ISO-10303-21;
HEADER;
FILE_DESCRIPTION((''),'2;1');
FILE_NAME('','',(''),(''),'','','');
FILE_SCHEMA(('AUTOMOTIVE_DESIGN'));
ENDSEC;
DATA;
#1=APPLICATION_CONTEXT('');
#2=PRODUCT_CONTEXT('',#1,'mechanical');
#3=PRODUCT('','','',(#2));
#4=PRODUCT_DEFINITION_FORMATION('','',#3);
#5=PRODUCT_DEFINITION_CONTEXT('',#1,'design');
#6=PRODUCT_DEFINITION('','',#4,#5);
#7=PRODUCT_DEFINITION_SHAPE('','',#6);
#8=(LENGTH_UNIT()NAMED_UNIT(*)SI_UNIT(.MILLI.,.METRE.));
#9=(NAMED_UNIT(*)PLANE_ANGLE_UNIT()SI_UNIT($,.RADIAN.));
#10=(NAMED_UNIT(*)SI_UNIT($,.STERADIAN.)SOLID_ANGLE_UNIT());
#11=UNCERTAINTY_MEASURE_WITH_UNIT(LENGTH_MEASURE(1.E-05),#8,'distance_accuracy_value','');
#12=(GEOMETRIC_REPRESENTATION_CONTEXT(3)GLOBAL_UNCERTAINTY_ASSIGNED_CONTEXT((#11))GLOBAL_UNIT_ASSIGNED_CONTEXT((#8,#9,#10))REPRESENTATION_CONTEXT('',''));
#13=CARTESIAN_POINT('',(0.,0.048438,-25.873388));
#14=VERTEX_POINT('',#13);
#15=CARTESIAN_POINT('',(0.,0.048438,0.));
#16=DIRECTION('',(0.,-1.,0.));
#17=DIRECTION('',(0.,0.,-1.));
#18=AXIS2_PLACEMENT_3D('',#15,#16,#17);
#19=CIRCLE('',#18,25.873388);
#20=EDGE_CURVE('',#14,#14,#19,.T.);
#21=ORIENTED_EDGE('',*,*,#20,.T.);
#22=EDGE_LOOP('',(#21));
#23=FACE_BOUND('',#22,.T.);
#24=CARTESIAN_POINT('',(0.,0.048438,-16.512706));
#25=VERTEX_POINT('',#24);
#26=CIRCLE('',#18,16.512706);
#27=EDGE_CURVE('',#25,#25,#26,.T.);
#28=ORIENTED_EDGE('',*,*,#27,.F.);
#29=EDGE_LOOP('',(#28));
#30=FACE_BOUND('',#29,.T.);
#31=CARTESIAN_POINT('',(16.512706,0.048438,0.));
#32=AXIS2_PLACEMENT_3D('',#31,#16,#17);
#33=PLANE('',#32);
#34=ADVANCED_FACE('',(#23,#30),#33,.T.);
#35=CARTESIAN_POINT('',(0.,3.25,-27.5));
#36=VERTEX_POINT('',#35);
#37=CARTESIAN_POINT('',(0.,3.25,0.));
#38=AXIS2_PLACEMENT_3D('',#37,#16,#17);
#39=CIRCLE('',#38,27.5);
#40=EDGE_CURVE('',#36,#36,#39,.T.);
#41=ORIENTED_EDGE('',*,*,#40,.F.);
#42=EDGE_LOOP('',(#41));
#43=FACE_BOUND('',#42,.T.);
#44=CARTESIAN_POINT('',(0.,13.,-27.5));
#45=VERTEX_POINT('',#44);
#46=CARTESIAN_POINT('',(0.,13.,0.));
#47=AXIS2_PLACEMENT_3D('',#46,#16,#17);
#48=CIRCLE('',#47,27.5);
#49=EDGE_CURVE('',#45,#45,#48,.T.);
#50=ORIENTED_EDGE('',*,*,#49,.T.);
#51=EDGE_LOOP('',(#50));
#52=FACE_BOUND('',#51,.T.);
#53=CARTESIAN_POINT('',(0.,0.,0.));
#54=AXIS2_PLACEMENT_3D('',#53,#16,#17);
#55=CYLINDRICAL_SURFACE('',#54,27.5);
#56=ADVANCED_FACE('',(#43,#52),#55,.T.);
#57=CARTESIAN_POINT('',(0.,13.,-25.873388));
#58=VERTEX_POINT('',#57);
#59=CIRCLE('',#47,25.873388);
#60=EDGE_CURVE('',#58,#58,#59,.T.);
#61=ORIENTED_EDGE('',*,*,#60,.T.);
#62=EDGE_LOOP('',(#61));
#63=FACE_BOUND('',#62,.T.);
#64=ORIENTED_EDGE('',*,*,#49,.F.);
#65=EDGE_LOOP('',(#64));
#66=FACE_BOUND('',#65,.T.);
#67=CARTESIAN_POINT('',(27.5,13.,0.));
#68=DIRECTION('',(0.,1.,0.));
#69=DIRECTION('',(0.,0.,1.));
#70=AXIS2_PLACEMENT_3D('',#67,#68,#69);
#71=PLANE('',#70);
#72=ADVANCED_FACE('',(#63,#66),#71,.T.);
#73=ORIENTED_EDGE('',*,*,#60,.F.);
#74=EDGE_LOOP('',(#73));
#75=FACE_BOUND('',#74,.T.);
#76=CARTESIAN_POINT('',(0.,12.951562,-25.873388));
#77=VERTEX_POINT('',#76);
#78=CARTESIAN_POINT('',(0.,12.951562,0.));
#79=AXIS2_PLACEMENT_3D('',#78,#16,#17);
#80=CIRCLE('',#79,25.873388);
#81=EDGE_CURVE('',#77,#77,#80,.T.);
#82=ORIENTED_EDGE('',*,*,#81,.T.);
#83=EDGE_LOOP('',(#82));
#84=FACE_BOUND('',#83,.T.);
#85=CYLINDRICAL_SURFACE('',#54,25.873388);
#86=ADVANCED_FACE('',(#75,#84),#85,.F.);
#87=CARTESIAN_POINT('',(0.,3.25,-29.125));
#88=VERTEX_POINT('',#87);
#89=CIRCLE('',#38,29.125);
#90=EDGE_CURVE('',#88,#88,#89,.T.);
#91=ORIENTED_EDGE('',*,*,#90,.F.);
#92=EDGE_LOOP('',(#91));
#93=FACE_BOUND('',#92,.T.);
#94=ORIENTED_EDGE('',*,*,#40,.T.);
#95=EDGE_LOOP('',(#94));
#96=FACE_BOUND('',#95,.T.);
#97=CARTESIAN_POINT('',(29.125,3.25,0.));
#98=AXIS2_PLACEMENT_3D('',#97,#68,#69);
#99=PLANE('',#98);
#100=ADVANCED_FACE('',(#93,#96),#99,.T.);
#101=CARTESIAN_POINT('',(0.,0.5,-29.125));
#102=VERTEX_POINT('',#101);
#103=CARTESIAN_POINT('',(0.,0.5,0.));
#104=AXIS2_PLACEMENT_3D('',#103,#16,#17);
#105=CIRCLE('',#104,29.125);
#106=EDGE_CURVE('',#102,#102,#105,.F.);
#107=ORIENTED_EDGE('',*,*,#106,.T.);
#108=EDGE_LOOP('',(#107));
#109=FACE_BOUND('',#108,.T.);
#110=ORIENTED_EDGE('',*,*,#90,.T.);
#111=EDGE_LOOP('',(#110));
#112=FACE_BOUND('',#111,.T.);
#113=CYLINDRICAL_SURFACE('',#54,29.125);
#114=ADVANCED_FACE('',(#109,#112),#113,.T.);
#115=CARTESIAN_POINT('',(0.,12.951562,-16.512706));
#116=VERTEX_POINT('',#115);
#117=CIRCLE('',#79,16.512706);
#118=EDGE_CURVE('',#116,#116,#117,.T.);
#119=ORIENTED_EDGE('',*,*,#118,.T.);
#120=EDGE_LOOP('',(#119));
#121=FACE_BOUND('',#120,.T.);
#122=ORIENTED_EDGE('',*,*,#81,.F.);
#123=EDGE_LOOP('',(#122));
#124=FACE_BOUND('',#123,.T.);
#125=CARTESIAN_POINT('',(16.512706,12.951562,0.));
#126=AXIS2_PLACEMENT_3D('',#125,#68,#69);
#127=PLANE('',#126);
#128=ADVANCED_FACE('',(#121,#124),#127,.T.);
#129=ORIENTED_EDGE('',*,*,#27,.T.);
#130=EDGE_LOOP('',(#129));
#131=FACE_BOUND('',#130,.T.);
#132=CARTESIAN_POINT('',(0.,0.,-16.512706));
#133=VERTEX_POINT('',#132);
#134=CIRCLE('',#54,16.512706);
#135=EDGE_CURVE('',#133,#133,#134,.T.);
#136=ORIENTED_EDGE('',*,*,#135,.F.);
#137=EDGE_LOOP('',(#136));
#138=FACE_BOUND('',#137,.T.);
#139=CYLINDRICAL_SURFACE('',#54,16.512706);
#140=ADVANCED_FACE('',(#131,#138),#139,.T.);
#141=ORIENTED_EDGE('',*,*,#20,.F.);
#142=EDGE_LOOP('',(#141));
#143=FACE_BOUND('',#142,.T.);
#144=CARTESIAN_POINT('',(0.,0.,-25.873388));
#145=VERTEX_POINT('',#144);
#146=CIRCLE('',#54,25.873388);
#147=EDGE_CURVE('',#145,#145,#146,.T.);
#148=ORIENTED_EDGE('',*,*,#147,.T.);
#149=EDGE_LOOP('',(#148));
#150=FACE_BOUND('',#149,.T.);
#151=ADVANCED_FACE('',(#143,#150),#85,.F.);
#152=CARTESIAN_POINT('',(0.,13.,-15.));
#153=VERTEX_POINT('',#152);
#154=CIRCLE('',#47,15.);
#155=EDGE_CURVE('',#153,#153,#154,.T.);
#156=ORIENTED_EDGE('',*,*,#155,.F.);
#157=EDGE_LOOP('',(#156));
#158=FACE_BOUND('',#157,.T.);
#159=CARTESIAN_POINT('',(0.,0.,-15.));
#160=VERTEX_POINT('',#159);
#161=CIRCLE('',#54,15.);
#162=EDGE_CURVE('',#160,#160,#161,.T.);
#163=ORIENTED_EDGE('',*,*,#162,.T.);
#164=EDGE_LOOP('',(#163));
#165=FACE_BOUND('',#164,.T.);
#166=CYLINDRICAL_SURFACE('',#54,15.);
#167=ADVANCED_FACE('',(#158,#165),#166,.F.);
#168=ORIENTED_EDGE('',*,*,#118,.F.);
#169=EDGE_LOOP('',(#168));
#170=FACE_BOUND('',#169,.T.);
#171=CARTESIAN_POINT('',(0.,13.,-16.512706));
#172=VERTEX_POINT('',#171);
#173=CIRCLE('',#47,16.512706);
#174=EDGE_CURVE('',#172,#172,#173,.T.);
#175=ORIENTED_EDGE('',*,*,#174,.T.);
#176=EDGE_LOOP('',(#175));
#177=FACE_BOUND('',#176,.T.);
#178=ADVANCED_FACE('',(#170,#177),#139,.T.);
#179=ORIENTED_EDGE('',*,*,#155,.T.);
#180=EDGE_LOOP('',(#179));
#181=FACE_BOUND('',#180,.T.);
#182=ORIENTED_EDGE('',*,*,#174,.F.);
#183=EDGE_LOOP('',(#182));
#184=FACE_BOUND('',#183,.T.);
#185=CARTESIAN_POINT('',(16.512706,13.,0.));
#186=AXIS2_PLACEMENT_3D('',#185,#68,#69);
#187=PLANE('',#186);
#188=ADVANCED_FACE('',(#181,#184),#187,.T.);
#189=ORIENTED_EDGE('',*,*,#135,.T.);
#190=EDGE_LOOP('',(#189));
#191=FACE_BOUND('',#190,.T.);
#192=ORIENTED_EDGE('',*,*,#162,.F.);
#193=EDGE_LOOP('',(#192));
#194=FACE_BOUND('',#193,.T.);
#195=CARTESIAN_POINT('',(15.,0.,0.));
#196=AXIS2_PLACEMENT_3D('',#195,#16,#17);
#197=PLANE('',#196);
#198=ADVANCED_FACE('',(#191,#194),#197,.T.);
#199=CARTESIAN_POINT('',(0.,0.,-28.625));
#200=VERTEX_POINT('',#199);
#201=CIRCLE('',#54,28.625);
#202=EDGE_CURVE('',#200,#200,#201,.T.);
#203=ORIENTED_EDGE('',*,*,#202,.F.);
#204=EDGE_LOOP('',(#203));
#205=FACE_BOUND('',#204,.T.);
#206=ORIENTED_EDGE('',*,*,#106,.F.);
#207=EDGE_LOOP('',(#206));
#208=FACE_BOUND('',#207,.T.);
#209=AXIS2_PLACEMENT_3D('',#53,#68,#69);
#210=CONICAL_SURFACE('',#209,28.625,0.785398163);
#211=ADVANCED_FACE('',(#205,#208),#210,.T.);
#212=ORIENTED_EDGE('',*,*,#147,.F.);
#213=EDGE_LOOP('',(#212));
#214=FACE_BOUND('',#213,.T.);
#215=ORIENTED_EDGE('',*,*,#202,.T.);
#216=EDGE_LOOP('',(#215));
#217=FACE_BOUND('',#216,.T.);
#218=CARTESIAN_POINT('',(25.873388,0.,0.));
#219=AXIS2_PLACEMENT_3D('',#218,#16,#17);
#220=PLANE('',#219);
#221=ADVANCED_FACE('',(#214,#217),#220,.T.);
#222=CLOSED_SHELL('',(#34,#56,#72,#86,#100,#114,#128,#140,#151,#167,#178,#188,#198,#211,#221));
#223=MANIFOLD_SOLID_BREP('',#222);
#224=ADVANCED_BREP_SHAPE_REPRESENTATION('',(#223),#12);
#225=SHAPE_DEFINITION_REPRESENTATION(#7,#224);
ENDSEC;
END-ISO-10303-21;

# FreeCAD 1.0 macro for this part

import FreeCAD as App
import Part
import Sketcher
from FreeCAD import Vector


def edges_at(feature, points):
    """Names of the edges that pass closest to the given points."""
    edges = feature.Shape.Edges
    near = lambda p: min(range(len(edges)), key=lambda i: edges[i].distToShape(Part.Vertex(*p))[0])
    return sorted({f"Edge{near(p) + 1}" for p in points})

doc = App.newDocument("Part")
body = doc.addObject("PartDesign::Body", "Body")

# Sketch on XY plane
sketch1 = body.newObject("Sketcher::SketchObject", "Sketch")
sketch1.AttachmentSupport = (doc.getObject("XY_Plane"), [""])
sketch1.MapMode = "FlatFace"
sketch1.addGeometry(Part.LineSegment(Vector(15, 0, 0), Vector(16.513, 0, 0)), False)
sketch1.addGeometry(Part.LineSegment(Vector(16.513, 0, 0), Vector(16.513, 0.048, 0)), False)
sketch1.addGeometry(Part.LineSegment(Vector(16.513, 0.048, 0), Vector(25.873, 0.048, 0)), False)
sketch1.addGeometry(Part.LineSegment(Vector(25.873, 0.048, 0), Vector(25.873, 0, 0)), False)
sketch1.addGeometry(Part.LineSegment(Vector(25.873, 0, 0), Vector(29.125, 0, 0)), False)
sketch1.addGeometry(Part.LineSegment(Vector(29.125, 0, 0), Vector(29.125, 3.25, 0)), False)
sketch1.addGeometry(Part.LineSegment(Vector(29.125, 3.25, 0), Vector(27.5, 3.25, 0)), False)
sketch1.addGeometry(Part.LineSegment(Vector(27.5, 3.25, 0), Vector(27.5, 13, 0)), False)
sketch1.addGeometry(Part.LineSegment(Vector(27.5, 13, 0), Vector(25.873, 13, 0)), False)
sketch1.addGeometry(Part.LineSegment(Vector(25.873, 13, 0), Vector(25.873, 12.952, 0)), False)
sketch1.addGeometry(Part.LineSegment(Vector(25.873, 12.952, 0), Vector(16.513, 12.952, 0)), False)
sketch1.addGeometry(Part.LineSegment(Vector(16.513, 12.952, 0), Vector(16.513, 13, 0)), False)
sketch1.addGeometry(Part.LineSegment(Vector(16.513, 13, 0), Vector(15, 13, 0)), False)
sketch1.addGeometry(Part.LineSegment(Vector(15, 13, 0), Vector(15, 0, 0)), False)
sketch1.addConstraint(Sketcher.Constraint("Coincident", 0, 2, 1, 1))
sketch1.addConstraint(Sketcher.Constraint("Coincident", 1, 2, 2, 1))
sketch1.addConstraint(Sketcher.Constraint("Coincident", 2, 2, 3, 1))
sketch1.addConstraint(Sketcher.Constraint("Coincident", 3, 2, 4, 1))
sketch1.addConstraint(Sketcher.Constraint("Coincident", 4, 2, 5, 1))
sketch1.addConstraint(Sketcher.Constraint("Coincident", 5, 2, 6, 1))
sketch1.addConstraint(Sketcher.Constraint("Coincident", 6, 2, 7, 1))
sketch1.addConstraint(Sketcher.Constraint("Coincident", 7, 2, 8, 1))
sketch1.addConstraint(Sketcher.Constraint("Coincident", 8, 2, 9, 1))
sketch1.addConstraint(Sketcher.Constraint("Coincident", 9, 2, 10, 1))
sketch1.addConstraint(Sketcher.Constraint("Coincident", 10, 2, 11, 1))
sketch1.addConstraint(Sketcher.Constraint("Coincident", 11, 2, 12, 1))
sketch1.addConstraint(Sketcher.Constraint("Coincident", 12, 2, 13, 1))
sketch1.addConstraint(Sketcher.Constraint("Coincident", 13, 2, 0, 1))
sketch1.addConstraint(Sketcher.Constraint("Horizontal", 0))
sketch1.addConstraint(Sketcher.Constraint("Vertical", 1))
sketch1.addConstraint(Sketcher.Constraint("Horizontal", 2))
sketch1.addConstraint(Sketcher.Constraint("Vertical", 3))
sketch1.addConstraint(Sketcher.Constraint("Horizontal", 4))
sketch1.addConstraint(Sketcher.Constraint("Vertical", 5))
sketch1.addConstraint(Sketcher.Constraint("Horizontal", 6))
sketch1.addConstraint(Sketcher.Constraint("Vertical", 7))
sketch1.addConstraint(Sketcher.Constraint("Horizontal", 8))
sketch1.addConstraint(Sketcher.Constraint("Vertical", 9))
sketch1.addConstraint(Sketcher.Constraint("Horizontal", 10))
sketch1.addConstraint(Sketcher.Constraint("Vertical", 11))
sketch1.addConstraint(Sketcher.Constraint("Horizontal", 12))
sketch1.addConstraint(Sketcher.Constraint("Vertical", 13))
sketch1.addConstraint(Sketcher.Constraint("PointOnObject", 0, 2, -1))
sketch1.addConstraint(Sketcher.Constraint("PointOnObject", 3, 2, -1))
sketch1.addConstraint(Sketcher.Constraint("Horizontal", 8, 2, 11, 2))
sketch1.addConstraint(Sketcher.Constraint("Vertical", 3, 2, 8, 2))
sketch1.addConstraint(Sketcher.Constraint("Vertical", 1, 2, 10, 2))
sketch1.addConstraint(Sketcher.Constraint("Equal", 3, 9))
sketch1.addConstraint(Sketcher.Constraint("DistanceY", 13, 2, 13, 1, 13.0))
sketch1.addConstraint(Sketcher.Constraint("DistanceX", -1, 1, 12, 2, 15.0))
sketch1.addConstraint(Sketcher.Constraint("DistanceY", 5, 1, 5, 2, 3.25))
sketch1.addConstraint(Sketcher.Constraint("DistanceX", -1, 1, 6, 2, 27.5))
sketch1.addConstraint(Sketcher.Constraint("DistanceX", 6, 2, 6, 1, 1.625))
sketch1.addConstraint(Sketcher.Constraint("DistanceX", 2, 1, 2, 2, 9.360681))
sketch1.addConstraint(Sketcher.Constraint("DistanceY", 1, 1, 1, 2, 0.048438))
sketch1.addConstraint(Sketcher.Constraint("DistanceX", 0, 1, 0, 2, 1.512706))
revolution = body.newObject("PartDesign::Revolution", "Revolution")
revolution.Profile = sketch1
revolution.ReferenceAxis = (sketch1, ["V_Axis"])
revolution.Angle = 360
doc.recompute()

chamfer = body.newObject("PartDesign::Chamfer", "Chamfer")
chamfer.Base = (revolution, edges_at(revolution, [(-29.125, 0, 0)]))
chamfer.Size = 0.5

doc.recompute()
